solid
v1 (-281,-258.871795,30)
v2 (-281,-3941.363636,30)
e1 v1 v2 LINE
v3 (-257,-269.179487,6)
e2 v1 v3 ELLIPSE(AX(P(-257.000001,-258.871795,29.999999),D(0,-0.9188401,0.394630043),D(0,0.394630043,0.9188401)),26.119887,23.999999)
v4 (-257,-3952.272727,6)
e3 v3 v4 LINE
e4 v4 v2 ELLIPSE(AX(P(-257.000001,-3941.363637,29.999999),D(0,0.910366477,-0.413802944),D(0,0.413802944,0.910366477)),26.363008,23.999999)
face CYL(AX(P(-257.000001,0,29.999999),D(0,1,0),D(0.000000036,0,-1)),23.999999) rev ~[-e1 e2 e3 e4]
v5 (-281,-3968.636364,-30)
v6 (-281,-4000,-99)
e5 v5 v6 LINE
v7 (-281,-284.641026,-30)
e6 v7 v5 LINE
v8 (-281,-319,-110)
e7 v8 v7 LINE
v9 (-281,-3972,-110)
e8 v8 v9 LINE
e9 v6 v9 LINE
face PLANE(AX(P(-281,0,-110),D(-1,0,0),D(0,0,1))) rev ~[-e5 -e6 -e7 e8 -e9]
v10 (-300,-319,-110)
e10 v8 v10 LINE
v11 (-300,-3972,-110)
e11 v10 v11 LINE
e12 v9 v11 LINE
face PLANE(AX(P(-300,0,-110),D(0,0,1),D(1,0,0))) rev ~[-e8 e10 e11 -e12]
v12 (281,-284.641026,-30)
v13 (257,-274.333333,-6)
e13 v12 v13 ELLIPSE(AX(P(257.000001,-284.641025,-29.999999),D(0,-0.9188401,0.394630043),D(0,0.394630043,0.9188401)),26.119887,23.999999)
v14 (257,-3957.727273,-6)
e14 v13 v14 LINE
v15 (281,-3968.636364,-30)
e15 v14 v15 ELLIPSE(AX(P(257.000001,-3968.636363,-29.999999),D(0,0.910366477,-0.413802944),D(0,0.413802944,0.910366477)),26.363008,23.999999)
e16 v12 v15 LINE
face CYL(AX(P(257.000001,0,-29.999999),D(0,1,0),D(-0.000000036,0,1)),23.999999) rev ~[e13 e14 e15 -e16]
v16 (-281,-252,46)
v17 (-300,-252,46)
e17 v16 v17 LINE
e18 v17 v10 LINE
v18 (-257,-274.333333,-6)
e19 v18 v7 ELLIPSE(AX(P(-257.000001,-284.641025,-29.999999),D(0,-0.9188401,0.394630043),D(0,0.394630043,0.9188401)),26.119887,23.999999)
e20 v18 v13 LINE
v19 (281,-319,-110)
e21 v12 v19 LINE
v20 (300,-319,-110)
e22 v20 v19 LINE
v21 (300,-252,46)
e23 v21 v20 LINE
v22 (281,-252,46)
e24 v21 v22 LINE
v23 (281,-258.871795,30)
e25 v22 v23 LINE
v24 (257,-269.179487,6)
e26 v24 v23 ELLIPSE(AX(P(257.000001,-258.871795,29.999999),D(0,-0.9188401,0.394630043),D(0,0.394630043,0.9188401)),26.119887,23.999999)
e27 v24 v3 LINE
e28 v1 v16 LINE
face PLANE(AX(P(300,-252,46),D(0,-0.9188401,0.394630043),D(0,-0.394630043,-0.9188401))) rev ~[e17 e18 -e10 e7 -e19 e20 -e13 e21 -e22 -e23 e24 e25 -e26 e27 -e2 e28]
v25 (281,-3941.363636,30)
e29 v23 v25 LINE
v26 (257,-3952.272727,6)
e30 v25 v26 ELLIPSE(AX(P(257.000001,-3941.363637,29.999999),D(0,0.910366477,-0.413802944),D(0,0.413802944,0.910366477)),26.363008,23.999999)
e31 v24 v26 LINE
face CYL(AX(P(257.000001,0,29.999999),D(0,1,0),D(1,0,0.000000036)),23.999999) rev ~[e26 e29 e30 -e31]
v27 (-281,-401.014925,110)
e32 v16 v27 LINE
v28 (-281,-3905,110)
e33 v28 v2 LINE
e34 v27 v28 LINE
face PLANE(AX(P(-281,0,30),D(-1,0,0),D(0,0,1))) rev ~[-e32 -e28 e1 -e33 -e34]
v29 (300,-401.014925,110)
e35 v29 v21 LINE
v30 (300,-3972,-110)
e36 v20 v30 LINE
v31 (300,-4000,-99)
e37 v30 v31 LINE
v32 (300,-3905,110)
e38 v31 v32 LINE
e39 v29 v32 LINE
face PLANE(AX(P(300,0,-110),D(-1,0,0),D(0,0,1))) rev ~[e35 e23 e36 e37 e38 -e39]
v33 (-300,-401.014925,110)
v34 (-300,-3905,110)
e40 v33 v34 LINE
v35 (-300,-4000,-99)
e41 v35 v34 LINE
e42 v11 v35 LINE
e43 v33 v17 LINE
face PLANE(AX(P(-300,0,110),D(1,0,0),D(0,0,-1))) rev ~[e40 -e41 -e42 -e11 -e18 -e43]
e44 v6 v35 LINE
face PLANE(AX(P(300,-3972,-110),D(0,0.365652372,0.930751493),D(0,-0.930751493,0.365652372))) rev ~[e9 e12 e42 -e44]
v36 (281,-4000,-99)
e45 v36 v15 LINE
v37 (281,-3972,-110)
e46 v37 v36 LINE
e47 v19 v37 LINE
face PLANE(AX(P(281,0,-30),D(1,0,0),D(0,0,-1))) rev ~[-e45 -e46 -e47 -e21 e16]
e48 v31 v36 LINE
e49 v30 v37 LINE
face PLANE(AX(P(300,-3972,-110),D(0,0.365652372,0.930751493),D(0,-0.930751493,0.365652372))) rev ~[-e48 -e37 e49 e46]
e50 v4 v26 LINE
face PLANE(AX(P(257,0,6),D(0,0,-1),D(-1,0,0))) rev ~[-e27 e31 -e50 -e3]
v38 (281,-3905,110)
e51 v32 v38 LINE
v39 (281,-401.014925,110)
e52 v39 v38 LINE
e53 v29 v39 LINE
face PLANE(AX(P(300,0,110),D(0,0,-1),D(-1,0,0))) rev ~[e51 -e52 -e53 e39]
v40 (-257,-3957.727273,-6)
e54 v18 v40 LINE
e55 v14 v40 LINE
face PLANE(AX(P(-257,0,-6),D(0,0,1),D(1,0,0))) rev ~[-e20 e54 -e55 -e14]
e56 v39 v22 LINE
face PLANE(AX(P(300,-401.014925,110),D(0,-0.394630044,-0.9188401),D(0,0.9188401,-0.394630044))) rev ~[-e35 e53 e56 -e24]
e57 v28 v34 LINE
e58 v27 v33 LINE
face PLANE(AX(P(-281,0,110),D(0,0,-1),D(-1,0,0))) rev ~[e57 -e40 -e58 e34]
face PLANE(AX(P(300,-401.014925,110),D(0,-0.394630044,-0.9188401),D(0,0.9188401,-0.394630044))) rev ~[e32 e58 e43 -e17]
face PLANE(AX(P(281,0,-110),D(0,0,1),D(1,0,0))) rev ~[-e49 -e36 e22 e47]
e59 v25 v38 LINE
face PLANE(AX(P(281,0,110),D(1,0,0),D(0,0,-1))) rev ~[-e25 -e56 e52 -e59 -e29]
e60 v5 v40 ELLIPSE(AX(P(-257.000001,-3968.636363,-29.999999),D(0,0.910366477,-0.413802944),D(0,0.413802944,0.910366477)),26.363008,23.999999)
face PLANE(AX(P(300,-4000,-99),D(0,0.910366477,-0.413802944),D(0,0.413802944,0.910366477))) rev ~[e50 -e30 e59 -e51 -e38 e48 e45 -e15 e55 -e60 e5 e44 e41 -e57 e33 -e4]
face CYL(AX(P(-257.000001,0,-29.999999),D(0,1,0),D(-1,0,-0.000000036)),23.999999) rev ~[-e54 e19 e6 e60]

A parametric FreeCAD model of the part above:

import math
import FreeCAD as App
import Part
import Sketcher
from FreeCAD import Vector


def add_polygon(sketch, points):
    """Adds a closed chain of lines whose ends are joined by coincident constraints."""
    first, n = sketch.GeometryCount, len(points)
    for a, b in zip(points, points[1:] + points[:1]):
        sketch.addGeometry(Part.LineSegment(App.Vector(*a, 0), App.Vector(*b, 0)), False)
    for i in range(n):
        sketch.addConstraint(Sketcher.Constraint("Coincident", first + i, 2, first + (i + 1) % n, 1))

doc = App.newDocument("Part")
body = doc.addObject("PartDesign::Body", "Body")

sketch1 = body.newObject("Sketcher::SketchObject", "Sketch")
sketch1.AttachmentSupport = (doc.getObject("XZ_Plane"), [""])
sketch1.MapMode = "FlatFace"
sketch1.addGeometry([
    Part.LineSegment(Vector(257, 6, 0), Vector(-257, 6, 0)),
    Part.ArcOfCircle(Part.Circle(Vector(-257, 30, 0), Vector(0, 0, 1), 24), math.radians(180), math.radians(270)),
    Part.LineSegment(Vector(-281, 30, 0), Vector(-281, 110, 0)),
    Part.LineSegment(Vector(-281, 110, 0), Vector(-300, 110, 0)),
    Part.LineSegment(Vector(-300, 110, 0), Vector(-300, -110, 0)),
    Part.LineSegment(Vector(-300, -110, 0), Vector(-281, -110, 0)),
    Part.LineSegment(Vector(-281, -110, 0), Vector(-281, -30, 0)),
    Part.ArcOfCircle(Part.Circle(Vector(-257, -30, 0), Vector(0, 0, 1), 24), math.radians(90), math.radians(180)),
    Part.LineSegment(Vector(-257, -6, 0), Vector(257, -6, 0)),
    Part.ArcOfCircle(Part.Circle(Vector(257, -30, 0), Vector(0, 0, 1), 24), math.radians(0), math.radians(90)),
    Part.LineSegment(Vector(281, -30, 0), Vector(281, -110, 0)),
    Part.LineSegment(Vector(281, -110, 0), Vector(300, -110, 0)),
    Part.LineSegment(Vector(300, -110, 0), Vector(300, 110, 0)),
    Part.LineSegment(Vector(300, 110, 0), Vector(281, 110, 0)),
    Part.LineSegment(Vector(281, 110, 0), Vector(281, 30, 0)),
    Part.ArcOfCircle(Part.Circle(Vector(257, 30, 0), Vector(0, 0, 1), 24), math.radians(-90), math.radians(0)),
], False)
sketch1.addConstraint([
    Sketcher.Constraint("Tangent", 0, 2, 1, 2),
    Sketcher.Constraint("Tangent", 1, 1, 2, 1),
    Sketcher.Constraint("Coincident", 2, 2, 3, 1),
    Sketcher.Constraint("Coincident", 3, 2, 4, 1),
    Sketcher.Constraint("Coincident", 4, 2, 5, 1),
    Sketcher.Constraint("Coincident", 5, 2, 6, 1),
    Sketcher.Constraint("Tangent", 6, 2, 7, 2),
    Sketcher.Constraint("Tangent", 7, 1, 8, 1),
    Sketcher.Constraint("Tangent", 8, 2, 9, 2),
    Sketcher.Constraint("Tangent", 9, 1, 10, 1),
    Sketcher.Constraint("Coincident", 10, 2, 11, 1),
    Sketcher.Constraint("Coincident", 11, 2, 12, 1),
    Sketcher.Constraint("Coincident", 12, 2, 13, 1),
    Sketcher.Constraint("Coincident", 13, 2, 14, 1),
    Sketcher.Constraint("Tangent", 14, 2, 15, 2),
    Sketcher.Constraint("Tangent", 15, 1, 0, 1),
    Sketcher.Constraint("Horizontal", 0),
    Sketcher.Constraint("Vertical", 2),
    Sketcher.Constraint("Horizontal", 3),
    Sketcher.Constraint("Vertical", 4),
    Sketcher.Constraint("Horizontal", 5),
    Sketcher.Constraint("Vertical", 6),
    Sketcher.Constraint("Horizontal", 8),
    Sketcher.Constraint("Vertical", 10),
    Sketcher.Constraint("Horizontal", 11),
    Sketcher.Constraint("Vertical", 12),
    Sketcher.Constraint("Horizontal", 13),
    Sketcher.Constraint("Vertical", 14),
    Sketcher.Constraint("Equal", 1, 7),
    Sketcher.Constraint("Equal", 7, 9),
    Sketcher.Constraint("Equal", 9, 15),
    Sketcher.Constraint("Symmetric", 1, 3, 9, 3, -1, 1),
    Sketcher.Constraint("Symmetric", 3, 2, 11, 2, -1, 1),
    Sketcher.Constraint("Symmetric", 5, 2, 13, 2, -1, 1),
    Sketcher.Constraint("Symmetric", 5, 2, 10, 2, -2),
    Sketcher.Constraint("Radius", 1, 23.999999),
    Sketcher.Constraint("DistanceX", 0, 2, 0, 1, 514.0),
    Sketcher.Constraint("DistanceX", 3, 2, 3, 1, 19.0),
    Sketcher.Constraint("DistanceY", 2, 1, 2, 2, 80.0),
    Sketcher.Constraint("DistanceY", 4, 2, 4, 1, 220.0),
])
pad1 = body.newObject("PartDesign::Pad", "Pad")
pad1.Profile = sketch1
pad1.Length = 4000

sketch2 = body.newObject("Sketcher::SketchObject", "Sketch001")
sketch2.AttachmentSupport = (doc.getObject("YZ_Plane"), [""])
sketch2.MapMode = "FlatFace"
sketch2.AttachmentOffset = App.Placement(Vector(0, 0, 300), App.Rotation())
add_polygon(sketch2, [(-4000, -110), (-3972, -110), (-4000, -99)])
add_polygon(sketch2, [(-4000, 110), (-4000, -99), (-3905, 110)])
add_polygon(sketch2, [(-252, 46), (-319, -110), (0, -110), (0, 110), (-401, 110)])
sketch2.addConstraint([
    Sketcher.Constraint("Horizontal", 0),
    Sketcher.Constraint("Vertical", 2),
    Sketcher.Constraint("Vertical", 3),
    Sketcher.Constraint("Horizontal", 5),
    Sketcher.Constraint("Horizontal", 7),
    Sketcher.Constraint("Vertical", 8),
    Sketcher.Constraint("Horizontal", 9),
    Sketcher.Constraint("Coincident", 3, 2, 1, 2),
    Sketcher.Constraint("Symmetric", 7, 2, 8, 2, -1, 1),
    Sketcher.Constraint("Perpendicular", 6, 10),
    Sketcher.Constraint("Horizontal", 2, 2, 6, 2),
    Sketcher.Constraint("Horizontal", 5, 2, 8, 2),
    Sketcher.Constraint("DistanceX", 0, 1, 0, 2, 28.0),
    Sketcher.Constraint("DistanceX", 5, 2, 5, 1, 95.0),
    Sketcher.Constraint("DistanceX", 7, 1, 7, 2, 319.0),
    Sketcher.Constraint("DistanceY", 2, 2, 2, 1, 11.0),
    Sketcher.Constraint("DistanceY", 3, 2, 3, 1, 209.0),
    Sketcher.Constraint("DistanceX", 0, 2, -1, 1, 3972.0),
    Sketcher.Constraint("DistanceX", 10, 2, -1, 1, 252.0),
    Sketcher.Constraint("DistanceY", -1, 1, 10, 2, 46.0),
])
pocket1 = body.newObject("PartDesign::Pocket", "Pocket")
pocket1.Profile = sketch2
pocket1.Type = "ThroughAll"

doc.recompute()
